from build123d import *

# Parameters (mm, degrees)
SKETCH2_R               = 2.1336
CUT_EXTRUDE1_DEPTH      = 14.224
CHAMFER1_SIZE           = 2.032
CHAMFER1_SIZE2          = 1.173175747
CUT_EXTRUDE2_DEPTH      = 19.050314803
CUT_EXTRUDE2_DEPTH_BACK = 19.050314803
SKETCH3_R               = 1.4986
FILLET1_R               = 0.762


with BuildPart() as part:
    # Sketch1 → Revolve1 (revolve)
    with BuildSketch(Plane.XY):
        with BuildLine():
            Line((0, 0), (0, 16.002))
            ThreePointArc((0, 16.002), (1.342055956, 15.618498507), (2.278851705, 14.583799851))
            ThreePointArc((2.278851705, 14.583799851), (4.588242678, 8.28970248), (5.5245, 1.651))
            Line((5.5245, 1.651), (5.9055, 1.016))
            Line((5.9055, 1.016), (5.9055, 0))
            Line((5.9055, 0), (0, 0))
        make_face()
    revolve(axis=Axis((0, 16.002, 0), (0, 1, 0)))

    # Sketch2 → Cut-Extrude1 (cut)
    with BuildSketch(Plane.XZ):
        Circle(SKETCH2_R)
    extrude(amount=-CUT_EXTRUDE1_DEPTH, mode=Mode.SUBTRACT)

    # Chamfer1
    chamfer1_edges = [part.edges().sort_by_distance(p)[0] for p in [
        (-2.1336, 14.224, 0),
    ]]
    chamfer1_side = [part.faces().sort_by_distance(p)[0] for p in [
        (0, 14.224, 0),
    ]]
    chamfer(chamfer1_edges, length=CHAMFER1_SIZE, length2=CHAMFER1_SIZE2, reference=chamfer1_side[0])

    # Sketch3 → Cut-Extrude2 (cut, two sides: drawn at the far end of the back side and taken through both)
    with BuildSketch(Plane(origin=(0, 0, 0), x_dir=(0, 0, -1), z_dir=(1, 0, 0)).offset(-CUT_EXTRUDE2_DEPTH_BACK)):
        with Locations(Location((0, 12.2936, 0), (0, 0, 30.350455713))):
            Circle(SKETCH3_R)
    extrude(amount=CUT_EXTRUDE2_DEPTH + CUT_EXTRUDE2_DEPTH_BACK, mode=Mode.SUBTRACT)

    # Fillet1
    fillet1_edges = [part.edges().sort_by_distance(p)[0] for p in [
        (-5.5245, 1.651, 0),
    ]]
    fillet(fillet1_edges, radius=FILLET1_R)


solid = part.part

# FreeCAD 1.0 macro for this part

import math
import FreeCAD as App
import Part
import Sketcher

V = App.Vector
Q = App.Units.Quantity


def edges_at(feature, points):
    """Names of the edges that pass closest to the given points."""
    edges = feature.Shape.Edges
    near = lambda p: min(range(len(edges)), key=lambda i: edges[i].distToShape(Part.Vertex(*p))[0])
    return sorted({f"Edge{near(p) + 1}" for p in points})

doc = App.newDocument("Part")
params = doc.addObject("Spreadsheet::Sheet", "Params")
for row, (alias, value) in enumerate([
    ("sketch1_radius", "0.1 in"),
    ("sketch1_radius2", "1.25 in"),
    ("sketch1_height", "0.63 in"),
    ("sketch1_height2", "0.04 in"),
    ("revolution_angle", "360 deg"),
    ("sketch2_diameter", "0.168 in"),
    ("pocket1_length", "0.56 in"),
    ("chamfer_size", "0.08 in"),
    ("chamfer_size2", "1.173176 mm"),
    ("sketch3_diameter", "0.118 in"),
    ("fillet_radius", "0.03 in"),
], start=1):
    params.set(f"A{row}", alias)
    params.set(f"B{row}", "=" + value)
    params.setAlias(f"B{row}", alias)

body = doc.addObject("PartDesign::Body", "Body")

sketch1 = body.newObject("Sketcher::SketchObject", "Sketch")
sketch1.AttachmentSupport = (doc.getObject("XY_Plane"), [""])
sketch1.MapMode = "FlatFace"
sketch1.addGeometry(Part.LineSegment(V(0, 16.002, 0), V(0, 0, 0)), False)
sketch1.addGeometry(Part.LineSegment(V(0, 0, 0), V(5.9055, 0, 0)), False)
sketch1.addGeometry(Part.LineSegment(V(5.9055, 0, 0), V(5.9055, 1.016, 0)), False)
sketch1.addGeometry(Part.LineSegment(V(5.9055, 1.016, 0), V(5.5245, 1.651, 0)), False)
sketch1.addGeometry(Part.ArcOfCircle(Part.Circle(V(-26.206795, 0.561302, 0), V(0, 0, 1), 31.75), math.radians(1.966847), math.radians(26.209428)), False)
sketch1.addGeometry(Part.ArcOfCircle(Part.Circle(V(0, 13.462, 0), V(0, 0, 1), 2.54), math.radians(26.209428), math.radians(90)), False)
sketch1.addConstraint(Sketcher.Constraint("Coincident", 0, 2, 1, 1))
sketch1.addConstraint(Sketcher.Constraint("Coincident", 1, 2, 2, 1))
sketch1.addConstraint(Sketcher.Constraint("Coincident", 2, 2, 3, 1))
sketch1.addConstraint(Sketcher.Constraint("Coincident", 3, 2, 4, 1))
sketch1.addConstraint(Sketcher.Constraint("Tangent", 4, 2, 5, 1))
sketch1.addConstraint(Sketcher.Constraint("Coincident", 5, 2, 0, 1))
sketch1.addConstraint(Sketcher.Constraint("Vertical", 0))
sketch1.addConstraint(Sketcher.Constraint("Horizontal", 1))
sketch1.addConstraint(Sketcher.Constraint("Vertical", 2))
sketch1.addConstraint(Sketcher.Constraint("Coincident", 0, 2, -1, 1))
sketch1.addConstraint(Sketcher.Constraint("PointOnObject", 5, 3, -2))
sketch1.addConstraint(Sketcher.Constraint("Radius", 5, Q("0.1 in")))
sketch1.addConstraint(Sketcher.Constraint("Radius", 4, Q("1.25 in")))
sketch1.addConstraint(Sketcher.Constraint("DistanceY", 0, 2, 0, 1, Q("0.63 in")))
sketch1.addConstraint(Sketcher.Constraint("DistanceY", 2, 1, 2, 2, Q("0.04 in")))
sketch1.addConstraint(Sketcher.Constraint("DistanceX", 1, 1, 1, 2, Q("0.2325 in")))
sketch1.addConstraint(Sketcher.Constraint("DistanceY", -1, 1, 3, 2, Q("0.065 in")))
sketch1.addConstraint(Sketcher.Constraint("DistanceX", 3, 2, 2, 2, Q("0.015 in")))
sketch1.setExpression("Constraints[11]", "Params.sketch1_radius")
sketch1.setExpression("Constraints[12]", "Params.sketch1_radius2")
sketch1.setExpression("Constraints[13]", "Params.sketch1_height")
sketch1.setExpression("Constraints[14]", "Params.sketch1_height2")
revolution = body.newObject("PartDesign::Revolution", "Revolution")
revolution.Profile = sketch1
revolution.ReferenceAxis = (sketch1, ["V_Axis"])
revolution.setExpression("Angle", "Params.revolution_angle")

sketch2 = body.newObject("Sketcher::SketchObject", "Sketch001")
sketch2.AttachmentSupport = (doc.getObject("XZ_Plane"), [""])
sketch2.MapMode = "FlatFace"
sketch2.addGeometry(Part.Circle(V(0, 0, 0), V(0, 0, 1), 2.1336), False)
sketch2.addConstraint(Sketcher.Constraint("Coincident", 0, 3, -1, 1))
sketch2.addConstraint(Sketcher.Constraint("Diameter", 0, Q("0.168 in")))
sketch2.setExpression("Constraints[1]", "Params.sketch2_diameter")
pocket1 = body.newObject("PartDesign::Pocket", "Pocket")
pocket1.Profile = sketch2
pocket1.setExpression("Length", "Params.pocket1_length")
doc.recompute()

chamfer = body.newObject("PartDesign::Chamfer", "Chamfer")
chamfer.Base = (pocket1, edges_at(pocket1, [(-2.134, 14.224, 0)]))
chamfer.ChamferType = "Two distances"
chamfer.setExpression("Size", "Params.chamfer_size")
chamfer.setExpression("Size2", "Params.chamfer_size2")
chamfer.FlipDirection = True

sketch3 = body.newObject("Sketcher::SketchObject", "Sketch002")
sketch3.AttachmentSupport = (doc.getObject("YZ_Plane"), [""])
sketch3.MapMode = "FlatFace"
sketch3.addGeometry(Part.Circle(V(12.2936, 0, 0), V(0, 0, 1), 1.4986), False)
sketch3.addConstraint(Sketcher.Constraint("PointOnObject", 0, 3, -1))
sketch3.addConstraint(Sketcher.Constraint("Diameter", 0, Q("0.118 in")))
sketch3.addConstraint(Sketcher.Constraint("DistanceX", -1, 1, 0, 3, Q("0.484 in")))
sketch3.setExpression("Constraints[1]", "Params.sketch3_diameter")
pocket2 = body.newObject("PartDesign::Pocket", "Pocket001")
pocket2.Profile = sketch3
pocket2.Type = "ThroughAll"
pocket2.Midplane = True
doc.recompute()

fillet = body.newObject("PartDesign::Fillet", "Fillet")
fillet.Base = (pocket2, edges_at(pocket2, [(-5.524, 1.651, 0)]))
fillet.setExpression("Radius", "Params.fillet_radius")

doc.recompute()
